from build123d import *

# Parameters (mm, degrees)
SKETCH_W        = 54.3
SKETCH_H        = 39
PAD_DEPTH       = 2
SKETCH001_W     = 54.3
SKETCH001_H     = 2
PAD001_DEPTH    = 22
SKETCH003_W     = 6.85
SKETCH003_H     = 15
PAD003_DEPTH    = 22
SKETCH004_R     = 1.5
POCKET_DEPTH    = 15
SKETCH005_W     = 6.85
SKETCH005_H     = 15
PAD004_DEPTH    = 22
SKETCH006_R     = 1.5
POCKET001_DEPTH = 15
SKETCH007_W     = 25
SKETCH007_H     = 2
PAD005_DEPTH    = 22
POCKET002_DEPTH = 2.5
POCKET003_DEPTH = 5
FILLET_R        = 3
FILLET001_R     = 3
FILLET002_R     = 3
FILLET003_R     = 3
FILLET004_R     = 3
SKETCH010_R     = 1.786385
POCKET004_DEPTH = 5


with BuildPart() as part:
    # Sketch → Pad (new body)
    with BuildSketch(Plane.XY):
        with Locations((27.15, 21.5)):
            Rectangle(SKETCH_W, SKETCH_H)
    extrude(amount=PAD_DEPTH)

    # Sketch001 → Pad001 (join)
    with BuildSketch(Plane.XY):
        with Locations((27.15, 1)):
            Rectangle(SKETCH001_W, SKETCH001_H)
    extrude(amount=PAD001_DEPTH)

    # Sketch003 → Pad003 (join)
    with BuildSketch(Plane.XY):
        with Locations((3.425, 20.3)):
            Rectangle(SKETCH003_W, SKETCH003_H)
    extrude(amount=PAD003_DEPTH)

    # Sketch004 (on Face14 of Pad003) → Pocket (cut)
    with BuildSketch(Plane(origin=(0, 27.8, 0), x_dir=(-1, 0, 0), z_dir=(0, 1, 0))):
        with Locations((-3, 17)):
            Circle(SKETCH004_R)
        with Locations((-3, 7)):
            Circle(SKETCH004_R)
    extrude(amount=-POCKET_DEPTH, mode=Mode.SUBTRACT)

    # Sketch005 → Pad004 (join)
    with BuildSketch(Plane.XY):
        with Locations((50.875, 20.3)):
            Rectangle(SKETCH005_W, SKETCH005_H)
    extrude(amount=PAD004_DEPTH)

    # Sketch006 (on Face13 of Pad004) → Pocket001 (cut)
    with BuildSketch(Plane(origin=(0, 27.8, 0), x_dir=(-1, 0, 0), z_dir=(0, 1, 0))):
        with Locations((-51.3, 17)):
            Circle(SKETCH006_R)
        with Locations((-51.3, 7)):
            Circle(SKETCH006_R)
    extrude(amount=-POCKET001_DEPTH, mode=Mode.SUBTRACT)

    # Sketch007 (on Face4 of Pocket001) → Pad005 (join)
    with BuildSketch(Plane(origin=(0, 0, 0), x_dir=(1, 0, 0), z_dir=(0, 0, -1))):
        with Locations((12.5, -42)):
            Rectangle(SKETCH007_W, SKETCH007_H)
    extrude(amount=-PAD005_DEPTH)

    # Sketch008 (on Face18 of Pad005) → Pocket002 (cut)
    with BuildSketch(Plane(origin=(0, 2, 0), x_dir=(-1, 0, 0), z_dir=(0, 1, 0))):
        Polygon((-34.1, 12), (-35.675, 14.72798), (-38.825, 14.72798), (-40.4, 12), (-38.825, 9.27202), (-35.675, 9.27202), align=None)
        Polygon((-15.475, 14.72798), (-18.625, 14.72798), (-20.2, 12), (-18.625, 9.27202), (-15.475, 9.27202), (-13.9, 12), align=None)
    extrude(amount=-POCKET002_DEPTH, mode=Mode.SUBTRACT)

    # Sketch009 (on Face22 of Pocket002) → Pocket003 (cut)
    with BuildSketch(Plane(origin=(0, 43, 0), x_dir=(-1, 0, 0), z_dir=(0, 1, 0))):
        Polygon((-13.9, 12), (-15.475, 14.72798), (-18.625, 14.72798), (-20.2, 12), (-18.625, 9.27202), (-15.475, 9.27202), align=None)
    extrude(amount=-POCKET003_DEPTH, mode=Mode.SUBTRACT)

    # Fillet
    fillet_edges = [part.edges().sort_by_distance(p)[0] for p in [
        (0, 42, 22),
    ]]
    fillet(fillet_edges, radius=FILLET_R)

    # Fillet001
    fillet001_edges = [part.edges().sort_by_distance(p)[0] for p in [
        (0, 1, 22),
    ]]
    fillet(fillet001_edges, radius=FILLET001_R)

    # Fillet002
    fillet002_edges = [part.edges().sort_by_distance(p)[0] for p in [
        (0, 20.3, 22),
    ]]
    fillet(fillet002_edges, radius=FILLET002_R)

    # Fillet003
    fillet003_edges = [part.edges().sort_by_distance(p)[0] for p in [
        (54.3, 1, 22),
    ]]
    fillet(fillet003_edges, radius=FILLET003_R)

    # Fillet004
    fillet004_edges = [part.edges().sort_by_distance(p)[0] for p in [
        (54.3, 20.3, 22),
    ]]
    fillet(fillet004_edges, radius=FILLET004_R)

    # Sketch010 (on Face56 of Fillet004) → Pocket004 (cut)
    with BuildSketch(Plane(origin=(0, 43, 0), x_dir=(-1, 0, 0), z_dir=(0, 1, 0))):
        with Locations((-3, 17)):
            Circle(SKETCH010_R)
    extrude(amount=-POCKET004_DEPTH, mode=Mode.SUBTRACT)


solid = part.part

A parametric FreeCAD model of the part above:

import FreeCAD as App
import Part
import Sketcher
from FreeCAD import Vector
Q = App.Units.Quantity


def edges_at(feature, points):
    """Names of the edges that pass closest to the given points."""
    edges = feature.Shape.Edges
    near = lambda p: min(range(len(edges)), key=lambda i: edges[i].distToShape(Part.Vertex(*p))[0])
    return sorted({f"Edge{near(p) + 1}" for p in points})

doc = App.newDocument("Part")
body = doc.addObject("PartDesign::Body", "Body")

# Sketch on XY plane
sketch1 = body.newObject("Sketcher::SketchObject", "Sketch")
sketch1.AttachmentSupport = (doc.getObject("XY_Plane"), [""])
sketch1.MapMode = "FlatFace"
sketch1.addGeometry(Part.LineSegment(Vector(0, 41, 0), Vector(0, 2, 0)), False)
sketch1.addGeometry(Part.LineSegment(Vector(0, 2, 0), Vector(54.3, 2, 0)), False)
sketch1.addGeometry(Part.LineSegment(Vector(54.3, 2, 0), Vector(54.3, 41, 0)), False)
sketch1.addGeometry(Part.LineSegment(Vector(54.3, 41, 0), Vector(0, 41, 0)), False)
sketch1.addConstraint(Sketcher.Constraint("Coincident", 0, 2, 1, 1))
sketch1.addConstraint(Sketcher.Constraint("Coincident", 1, 2, 2, 1))
sketch1.addConstraint(Sketcher.Constraint("Coincident", 2, 2, 3, 1))
sketch1.addConstraint(Sketcher.Constraint("Coincident", 3, 2, 0, 1))
sketch1.addConstraint(Sketcher.Constraint("Vertical", 0))
sketch1.addConstraint(Sketcher.Constraint("Horizontal", 1))
sketch1.addConstraint(Sketcher.Constraint("Vertical", 2))
sketch1.addConstraint(Sketcher.Constraint("Horizontal", 3))
sketch1.addConstraint(Sketcher.Constraint("PointOnObject", 0, 2, -2))
sketch1.addConstraint(Sketcher.Constraint("DistanceY", 0, 2, 0, 1, Q("39 mm")))
sketch1.addConstraint(Sketcher.Constraint("DistanceX", 1, 1, 1, 2, Q("54.3 mm")))
sketch1.addConstraint(Sketcher.Constraint("DistanceY", -1, 1, 0, 2, Q("2 mm")))
pad1 = body.newObject("PartDesign::Pad", "Pad")
pad1.Profile = sketch1
pad1.Length = 2

# Sketch on XY plane
sketch2 = body.newObject("Sketcher::SketchObject", "Sketch001")
sketch2.AttachmentSupport = (doc.getObject("XY_Plane"), [""])
sketch2.MapMode = "FlatFace"
sketch2.addGeometry(Part.LineSegment(Vector(0, 2, 0), Vector(0, 0, 0)), False)
sketch2.addGeometry(Part.LineSegment(Vector(0, 0, 0), Vector(54.3, 0, 0)), False)
sketch2.addGeometry(Part.LineSegment(Vector(54.3, 0, 0), Vector(54.3, 2, 0)), False)
sketch2.addGeometry(Part.LineSegment(Vector(54.3, 2, 0), Vector(0, 2, 0)), False)
sketch2.addConstraint(Sketcher.Constraint("Coincident", 0, 2, 1, 1))
sketch2.addConstraint(Sketcher.Constraint("Coincident", 1, 2, 2, 1))
sketch2.addConstraint(Sketcher.Constraint("Coincident", 2, 2, 3, 1))
sketch2.addConstraint(Sketcher.Constraint("Coincident", 3, 2, 0, 1))
sketch2.addConstraint(Sketcher.Constraint("Vertical", 0))
sketch2.addConstraint(Sketcher.Constraint("Horizontal", 1))
sketch2.addConstraint(Sketcher.Constraint("Vertical", 2))
sketch2.addConstraint(Sketcher.Constraint("Horizontal", 3))
sketch2.addConstraint(Sketcher.Constraint("Coincident", 0, 2, -1, 1))
sketch2.addConstraint(Sketcher.Constraint("DistanceY", 0, 2, 0, 1, Q("2 mm")))
sketch2.addConstraint(Sketcher.Constraint("DistanceX", 1, 1, 1, 2, Q("54.3 mm")))
pad2 = body.newObject("PartDesign::Pad", "Pad001")
pad2.Profile = sketch2
pad2.Length = 22

# Sketch on XY plane
sketch3 = body.newObject("Sketcher::SketchObject", "Sketch002")
sketch3.AttachmentSupport = (doc.getObject("XY_Plane"), [""])
sketch3.MapMode = "FlatFace"
sketch3.addGeometry(Part.LineSegment(Vector(0, 27.8, 0), Vector(0, 12.8, 0)), False)
sketch3.addGeometry(Part.LineSegment(Vector(0, 12.8, 0), Vector(6.85, 12.8, 0)), False)
sketch3.addGeometry(Part.LineSegment(Vector(6.85, 12.8, 0), Vector(6.85, 27.8, 0)), False)
sketch3.addGeometry(Part.LineSegment(Vector(6.85, 27.8, 0), Vector(0, 27.8, 0)), False)
sketch3.addConstraint(Sketcher.Constraint("Coincident", 0, 2, 1, 1))
sketch3.addConstraint(Sketcher.Constraint("Coincident", 1, 2, 2, 1))
sketch3.addConstraint(Sketcher.Constraint("Coincident", 2, 2, 3, 1))
sketch3.addConstraint(Sketcher.Constraint("Coincident", 3, 2, 0, 1))
sketch3.addConstraint(Sketcher.Constraint("Vertical", 0))
sketch3.addConstraint(Sketcher.Constraint("Horizontal", 1))
sketch3.addConstraint(Sketcher.Constraint("Vertical", 2))
sketch3.addConstraint(Sketcher.Constraint("Horizontal", 3))
sketch3.addConstraint(Sketcher.Constraint("PointOnObject", 0, 2, -2))
sketch3.addConstraint(Sketcher.Constraint("DistanceY", 0, 2, 0, 1, Q("15 mm")))
sketch3.addConstraint(Sketcher.Constraint("DistanceX", 1, 1, 1, 2, Q("6.85 mm")))
sketch3.addConstraint(Sketcher.Constraint("DistanceY", -1, 1, 0, 2, Q("12.8 mm")))
pad3 = body.newObject("PartDesign::Pad", "Pad002")
pad3.Profile = sketch3
pad3.Length = 22

# Sketch on XZ plane
sketch4 = body.newObject("Sketcher::SketchObject", "Sketch003")
sketch4.AttachmentSupport = (doc.getObject("XZ_Plane"), [""])
sketch4.MapMode = "FlatFace"
sketch4.AttachmentOffset = App.Placement(Vector(0, 0, -27.8), App.Rotation())
sketch4.addGeometry(Part.Circle(Vector(3, 17, 0), Vector(0, 0, 1), 1.5), False)
sketch4.addGeometry(Part.Circle(Vector(3, 7, 0), Vector(0, 0, 1), 1.5), False)
sketch4.addConstraint(Sketcher.Constraint("Equal", 0, 1))
sketch4.addConstraint(Sketcher.Constraint("Vertical", 0, 3, 1, 3))
sketch4.addConstraint(Sketcher.Constraint("Diameter", 0, Q("3 mm")))
sketch4.addConstraint(Sketcher.Constraint("DistanceX", -1, 1, 0, 3, Q("3 mm")))
sketch4.addConstraint(Sketcher.Constraint("DistanceY", -1, 1, 0, 3, Q("17 mm")))
sketch4.addConstraint(Sketcher.Constraint("DistanceY", -1, 1, 1, 3, Q("7 mm")))
pocket1 = body.newObject("PartDesign::Pocket", "Pocket")
pocket1.Profile = sketch4
pocket1.Length = 15
pocket1.Reversed = True

# Sketch on XY plane
sketch5 = body.newObject("Sketcher::SketchObject", "Sketch004")
sketch5.AttachmentSupport = (doc.getObject("XY_Plane"), [""])
sketch5.MapMode = "FlatFace"
sketch5.addGeometry(Part.LineSegment(Vector(47.45, 27.8, 0), Vector(47.45, 12.8, 0)), False)
sketch5.addGeometry(Part.LineSegment(Vector(47.45, 12.8, 0), Vector(54.3, 12.8, 0)), False)
sketch5.addGeometry(Part.LineSegment(Vector(54.3, 12.8, 0), Vector(54.3, 27.8, 0)), False)
sketch5.addGeometry(Part.LineSegment(Vector(54.3, 27.8, 0), Vector(47.45, 27.8, 0)), False)
sketch5.addConstraint(Sketcher.Constraint("Coincident", 0, 2, 1, 1))
sketch5.addConstraint(Sketcher.Constraint("Coincident", 1, 2, 2, 1))
sketch5.addConstraint(Sketcher.Constraint("Coincident", 2, 2, 3, 1))
sketch5.addConstraint(Sketcher.Constraint("Coincident", 3, 2, 0, 1))
sketch5.addConstraint(Sketcher.Constraint("Vertical", 0))
sketch5.addConstraint(Sketcher.Constraint("Horizontal", 1))
sketch5.addConstraint(Sketcher.Constraint("Vertical", 2))
sketch5.addConstraint(Sketcher.Constraint("Horizontal", 3))
sketch5.addConstraint(Sketcher.Constraint("DistanceY", 0, 2, 0, 1, Q("15 mm")))
sketch5.addConstraint(Sketcher.Constraint("DistanceX", 1, 1, 1, 2, Q("6.85 mm")))
sketch5.addConstraint(Sketcher.Constraint("DistanceY", -1, 1, 0, 2, Q("12.8 mm")))
sketch5.addConstraint(Sketcher.Constraint("DistanceX", -1, 1, 1, 2, Q("54.3 mm")))
pad4 = body.newObject("PartDesign::Pad", "Pad003")
pad4.Profile = sketch5
pad4.Length = 22

# Sketch on XZ plane
sketch6 = body.newObject("Sketcher::SketchObject", "Sketch005")
sketch6.AttachmentSupport = (doc.getObject("XZ_Plane"), [""])
sketch6.MapMode = "FlatFace"
sketch6.AttachmentOffset = App.Placement(Vector(0, 0, -27.8), App.Rotation())
sketch6.addGeometry(Part.Circle(Vector(51.3, 17, 0), Vector(0, 0, 1), 1.5), False)
sketch6.addGeometry(Part.Circle(Vector(51.3, 7, 0), Vector(0, 0, 1), 1.5), False)
sketch6.addConstraint(Sketcher.Constraint("Equal", 0, 1))
sketch6.addConstraint(Sketcher.Constraint("Vertical", 0, 3, 1, 3))
sketch6.addConstraint(Sketcher.Constraint("Diameter", 0, Q("3 mm")))
sketch6.addConstraint(Sketcher.Constraint("DistanceY", -1, 1, 0, 3, Q("17 mm")))
sketch6.addConstraint(Sketcher.Constraint("DistanceY", -1, 1, 1, 3, Q("7 mm")))
sketch6.addConstraint(Sketcher.Constraint("DistanceX", -1, 1, 0, 3, Q("51.3 mm")))
pocket2 = body.newObject("PartDesign::Pocket", "Pocket001")
pocket2.Profile = sketch6
pocket2.Length = 15
pocket2.Reversed = True

# Sketch on XY plane
sketch7 = body.newObject("Sketcher::SketchObject", "Sketch006")
sketch7.AttachmentSupport = (doc.getObject("XY_Plane"), [""])
sketch7.MapMode = "FlatFace"
sketch7.addGeometry(Part.LineSegment(Vector(0, 41, 0), Vector(0, 43, 0)), False)
sketch7.addGeometry(Part.LineSegment(Vector(0, 43, 0), Vector(25, 43, 0)), False)
sketch7.addGeometry(Part.LineSegment(Vector(25, 43, 0), Vector(25, 41, 0)), False)
sketch7.addGeometry(Part.LineSegment(Vector(25, 41, 0), Vector(0, 41, 0)), False)
sketch7.addConstraint(Sketcher.Constraint("Coincident", 0, 2, 1, 1))
sketch7.addConstraint(Sketcher.Constraint("Coincident", 1, 2, 2, 1))
sketch7.addConstraint(Sketcher.Constraint("Coincident", 2, 2, 3, 1))
sketch7.addConstraint(Sketcher.Constraint("Coincident", 3, 2, 0, 1))
sketch7.addConstraint(Sketcher.Constraint("Vertical", 0))
sketch7.addConstraint(Sketcher.Constraint("Horizontal", 1))
sketch7.addConstraint(Sketcher.Constraint("Vertical", 2))
sketch7.addConstraint(Sketcher.Constraint("Horizontal", 3))
sketch7.addConstraint(Sketcher.Constraint("PointOnObject", 0, 2, -2))
sketch7.addConstraint(Sketcher.Constraint("DistanceX", 1, 1, 1, 2, Q("25 mm")))
sketch7.addConstraint(Sketcher.Constraint("DistanceY", 0, 1, 0, 2, Q("2 mm")))
sketch7.addConstraint(Sketcher.Constraint("DistanceY", -1, 1, 0, 2, Q("43 mm")))
pad5 = body.newObject("PartDesign::Pad", "Pad004")
pad5.Profile = sketch7
pad5.Length = 22

# Sketch on XZ plane
sketch8 = body.newObject("Sketcher::SketchObject", "Sketch007")
sketch8.AttachmentSupport = (doc.getObject("XZ_Plane"), [""])
sketch8.MapMode = "FlatFace"
sketch8.AttachmentOffset = App.Placement(Vector(0, 0, -2), App.Rotation())
sketch8.addGeometry(Part.LineSegment(Vector(34.1, 12, 0), Vector(35.675, 14.72798, 0)), False)
sketch8.addGeometry(Part.LineSegment(Vector(35.675, 14.72798, 0), Vector(38.825, 14.72798, 0)), False)
sketch8.addGeometry(Part.LineSegment(Vector(38.825, 14.72798, 0), Vector(40.4, 12, 0)), False)
sketch8.addGeometry(Part.LineSegment(Vector(40.4, 12, 0), Vector(38.825, 9.27202, 0)), False)
sketch8.addGeometry(Part.LineSegment(Vector(38.825, 9.27202, 0), Vector(35.675, 9.27202, 0)), False)
sketch8.addGeometry(Part.LineSegment(Vector(35.675, 9.27202, 0), Vector(34.1, 12, 0)), False)
sketch8.addGeometry(Part.LineSegment(Vector(15.475, 14.72798, 0), Vector(18.625, 14.72798, 0)), False)
sketch8.addGeometry(Part.LineSegment(Vector(18.625, 14.72798, 0), Vector(20.2, 12, 0)), False)
sketch8.addGeometry(Part.LineSegment(Vector(20.2, 12, 0), Vector(18.625, 9.27202, 0)), False)
sketch8.addGeometry(Part.LineSegment(Vector(18.625, 9.27202, 0), Vector(15.475, 9.27202, 0)), False)
sketch8.addGeometry(Part.LineSegment(Vector(15.475, 9.27202, 0), Vector(13.9, 12, 0)), False)
sketch8.addGeometry(Part.LineSegment(Vector(13.9, 12, 0), Vector(15.475, 14.72798, 0)), False)
sketch8.addConstraint(Sketcher.Constraint("Coincident", 0, 2, 1, 1))
sketch8.addConstraint(Sketcher.Constraint("Coincident", 1, 2, 2, 1))
sketch8.addConstraint(Sketcher.Constraint("Coincident", 2, 2, 3, 1))
sketch8.addConstraint(Sketcher.Constraint("Coincident", 3, 2, 4, 1))
sketch8.addConstraint(Sketcher.Constraint("Coincident", 4, 2, 5, 1))
sketch8.addConstraint(Sketcher.Constraint("Coincident", 5, 2, 0, 1))
sketch8.addConstraint(Sketcher.Constraint("Coincident", 6, 2, 7, 1))
sketch8.addConstraint(Sketcher.Constraint("Coincident", 7, 2, 8, 1))
sketch8.addConstraint(Sketcher.Constraint("Coincident", 8, 2, 9, 1))
sketch8.addConstraint(Sketcher.Constraint("Coincident", 9, 2, 10, 1))
sketch8.addConstraint(Sketcher.Constraint("Coincident", 10, 2, 11, 1))
sketch8.addConstraint(Sketcher.Constraint("Coincident", 11, 2, 6, 1))
sketch8.addConstraint(Sketcher.Constraint("Horizontal", 1))
sketch8.addConstraint(Sketcher.Constraint("Horizontal", 4))
sketch8.addConstraint(Sketcher.Constraint("Horizontal", 6))
sketch8.addConstraint(Sketcher.Constraint("Horizontal", 9))
sketch8.addConstraint(Sketcher.Constraint("Parallel", 0, 3))
sketch8.addConstraint(Sketcher.Constraint("Parallel", 2, 5))
sketch8.addConstraint(Sketcher.Constraint("Parallel", 5, 7))
sketch8.addConstraint(Sketcher.Constraint("Parallel", 3, 8))
sketch8.addConstraint(Sketcher.Constraint("Parallel", 7, 10))
sketch8.addConstraint(Sketcher.Constraint("Parallel", 8, 11))
sketch8.addConstraint(Sketcher.Constraint("Horizontal", 2, 2, 5, 2))
sketch8.addConstraint(Sketcher.Constraint("Horizontal", 1, 2, 6, 2))
sketch8.addConstraint(Sketcher.Constraint("Horizontal", 5, 2, 7, 2))
sketch8.addConstraint(Sketcher.Constraint("Horizontal", 4, 2, 8, 2))
sketch8.addConstraint(Sketcher.Constraint("Horizontal", 7, 2, 10, 2))
sketch8.addConstraint(Sketcher.Constraint("Vertical", 1, 2, 3, 2))
sketch8.addConstraint(Sketcher.Constraint("Vertical", 0, 2, 4, 2))
sketch8.addConstraint(Sketcher.Constraint("Equal", 4, 6))
sketch8.addConstraint(Sketcher.Constraint("Angle", 0, Q("60 deg")))
sketch8.addConstraint(Sketcher.Constraint("DistanceY", -1, 1, 2, 2, Q("12 mm")))
sketch8.addConstraint(Sketcher.Constraint("DistanceX", 1, 1, 1, 2, Q("3.15 mm")))
sketch8.addConstraint(Sketcher.Constraint("DistanceX", -1, 1, 2, 2, Q("40.4 mm")))
sketch8.addConstraint(Sketcher.Constraint("DistanceX", -1, 1, 5, 2, Q("34.1 mm")))
sketch8.addConstraint(Sketcher.Constraint("DistanceX", -1, 1, 7, 2, Q("20.2 mm")))
pocket3 = body.newObject("PartDesign::Pocket", "Pocket002")
pocket3.Profile = sketch8
pocket3.Length = 2.5
pocket3.Reversed = True

# Sketch on XZ plane
sketch9 = body.newObject("Sketcher::SketchObject", "Sketch008")
sketch9.AttachmentSupport = (doc.getObject("XZ_Plane"), [""])
sketch9.MapMode = "FlatFace"
sketch9.AttachmentOffset = App.Placement(Vector(0, 0, -43), App.Rotation())
sketch9.addGeometry(Part.LineSegment(Vector(13.9, 12, 0), Vector(15.475, 14.72798, 0)), False)
sketch9.addGeometry(Part.LineSegment(Vector(15.475, 14.72798, 0), Vector(18.625, 14.72798, 0)), False)
sketch9.addGeometry(Part.LineSegment(Vector(18.625, 14.72798, 0), Vector(20.2, 12, 0)), False)
sketch9.addGeometry(Part.LineSegment(Vector(20.2, 12, 0), Vector(18.625, 9.27202, 0)), False)
sketch9.addGeometry(Part.LineSegment(Vector(18.625, 9.27202, 0), Vector(15.475, 9.27202, 0)), False)
sketch9.addGeometry(Part.LineSegment(Vector(15.475, 9.27202, 0), Vector(13.9, 12, 0)), False)
sketch9.addConstraint(Sketcher.Constraint("Coincident", 0, 2, 1, 1))
sketch9.addConstraint(Sketcher.Constraint("Coincident", 1, 2, 2, 1))
sketch9.addConstraint(Sketcher.Constraint("Coincident", 2, 2, 3, 1))
sketch9.addConstraint(Sketcher.Constraint("Coincident", 3, 2, 4, 1))
sketch9.addConstraint(Sketcher.Constraint("Coincident", 4, 2, 5, 1))
sketch9.addConstraint(Sketcher.Constraint("Coincident", 5, 2, 0, 1))
sketch9.addConstraint(Sketcher.Constraint("Horizontal", 1))
sketch9.addConstraint(Sketcher.Constraint("Horizontal", 4))
sketch9.addConstraint(Sketcher.Constraint("Parallel", 0, 3))
sketch9.addConstraint(Sketcher.Constraint("Parallel", 2, 5))
sketch9.addConstraint(Sketcher.Constraint("Horizontal", 2, 2, 5, 2))
sketch9.addConstraint(Sketcher.Constraint("Vertical", 1, 2, 3, 2))
sketch9.addConstraint(Sketcher.Constraint("Vertical", 0, 2, 4, 2))
sketch9.addConstraint(Sketcher.Constraint("Angle", 0, Q("60 deg")))
sketch9.addConstraint(Sketcher.Constraint("DistanceY", -1, 1, 2, 2, Q("12 mm")))
sketch9.addConstraint(Sketcher.Constraint("DistanceX", 1, 1, 1, 2, Q("3.15 mm")))
sketch9.addConstraint(Sketcher.Constraint("DistanceX", -1, 1, 2, 2, Q("20.2 mm")))
sketch9.addConstraint(Sketcher.Constraint("DistanceX", -1, 1, 5, 2, Q("13.9 mm")))
pocket4 = body.newObject("PartDesign::Pocket", "Pocket003")
pocket4.Profile = sketch9
pocket4.Length = 5
pocket4.Reversed = True
doc.recompute()

fillet = body.newObject("PartDesign::Fillet", "Fillet")
fillet.Base = (pocket4, edges_at(pocket4, [(0, 42, 22)]))
fillet.Radius = 3
doc.recompute()

fillet2 = body.newObject("PartDesign::Fillet", "Fillet001")
fillet2.Base = (fillet, edges_at(fillet, [(0, 1, 22)]))
fillet2.Radius = 3
doc.recompute()

fillet3 = body.newObject("PartDesign::Fillet", "Fillet002")
fillet3.Base = (fillet2, edges_at(fillet2, [(0, 20.3, 22)]))
fillet3.Radius = 3
doc.recompute()

fillet4 = body.newObject("PartDesign::Fillet", "Fillet003")
fillet4.Base = (fillet3, edges_at(fillet3, [(54.3, 1, 22)]))
fillet4.Radius = 3
doc.recompute()

fillet5 = body.newObject("PartDesign::Fillet", "Fillet004")
fillet5.Base = (fillet4, edges_at(fillet4, [(54.3, 20.3, 22)]))
fillet5.Radius = 3

# Sketch on XZ plane
sketch10 = body.newObject("Sketcher::SketchObject", "Sketch009")
sketch10.AttachmentSupport = (doc.getObject("XZ_Plane"), [""])
sketch10.MapMode = "FlatFace"
sketch10.AttachmentOffset = App.Placement(Vector(0, 0, -43), App.Rotation())
sketch10.addGeometry(Part.Circle(Vector(3, 17, 0), Vector(0, 0, 1), 1.786385), False)
sketch10.addConstraint(Sketcher.Constraint("DistanceX", -1, 1, 0, 3, Q("3 mm")))
sketch10.addConstraint(Sketcher.Constraint("DistanceY", -1, 1, 0, 3, Q("17 mm")))
sketch10.addConstraint(Sketcher.Constraint("Diameter", 0, Q("3.57277 mm")))
pocket5 = body.newObject("PartDesign::Pocket", "Pocket004")
pocket5.Profile = sketch10
pocket5.Length = 5
pocket5.Reversed = True

doc.recompute()
